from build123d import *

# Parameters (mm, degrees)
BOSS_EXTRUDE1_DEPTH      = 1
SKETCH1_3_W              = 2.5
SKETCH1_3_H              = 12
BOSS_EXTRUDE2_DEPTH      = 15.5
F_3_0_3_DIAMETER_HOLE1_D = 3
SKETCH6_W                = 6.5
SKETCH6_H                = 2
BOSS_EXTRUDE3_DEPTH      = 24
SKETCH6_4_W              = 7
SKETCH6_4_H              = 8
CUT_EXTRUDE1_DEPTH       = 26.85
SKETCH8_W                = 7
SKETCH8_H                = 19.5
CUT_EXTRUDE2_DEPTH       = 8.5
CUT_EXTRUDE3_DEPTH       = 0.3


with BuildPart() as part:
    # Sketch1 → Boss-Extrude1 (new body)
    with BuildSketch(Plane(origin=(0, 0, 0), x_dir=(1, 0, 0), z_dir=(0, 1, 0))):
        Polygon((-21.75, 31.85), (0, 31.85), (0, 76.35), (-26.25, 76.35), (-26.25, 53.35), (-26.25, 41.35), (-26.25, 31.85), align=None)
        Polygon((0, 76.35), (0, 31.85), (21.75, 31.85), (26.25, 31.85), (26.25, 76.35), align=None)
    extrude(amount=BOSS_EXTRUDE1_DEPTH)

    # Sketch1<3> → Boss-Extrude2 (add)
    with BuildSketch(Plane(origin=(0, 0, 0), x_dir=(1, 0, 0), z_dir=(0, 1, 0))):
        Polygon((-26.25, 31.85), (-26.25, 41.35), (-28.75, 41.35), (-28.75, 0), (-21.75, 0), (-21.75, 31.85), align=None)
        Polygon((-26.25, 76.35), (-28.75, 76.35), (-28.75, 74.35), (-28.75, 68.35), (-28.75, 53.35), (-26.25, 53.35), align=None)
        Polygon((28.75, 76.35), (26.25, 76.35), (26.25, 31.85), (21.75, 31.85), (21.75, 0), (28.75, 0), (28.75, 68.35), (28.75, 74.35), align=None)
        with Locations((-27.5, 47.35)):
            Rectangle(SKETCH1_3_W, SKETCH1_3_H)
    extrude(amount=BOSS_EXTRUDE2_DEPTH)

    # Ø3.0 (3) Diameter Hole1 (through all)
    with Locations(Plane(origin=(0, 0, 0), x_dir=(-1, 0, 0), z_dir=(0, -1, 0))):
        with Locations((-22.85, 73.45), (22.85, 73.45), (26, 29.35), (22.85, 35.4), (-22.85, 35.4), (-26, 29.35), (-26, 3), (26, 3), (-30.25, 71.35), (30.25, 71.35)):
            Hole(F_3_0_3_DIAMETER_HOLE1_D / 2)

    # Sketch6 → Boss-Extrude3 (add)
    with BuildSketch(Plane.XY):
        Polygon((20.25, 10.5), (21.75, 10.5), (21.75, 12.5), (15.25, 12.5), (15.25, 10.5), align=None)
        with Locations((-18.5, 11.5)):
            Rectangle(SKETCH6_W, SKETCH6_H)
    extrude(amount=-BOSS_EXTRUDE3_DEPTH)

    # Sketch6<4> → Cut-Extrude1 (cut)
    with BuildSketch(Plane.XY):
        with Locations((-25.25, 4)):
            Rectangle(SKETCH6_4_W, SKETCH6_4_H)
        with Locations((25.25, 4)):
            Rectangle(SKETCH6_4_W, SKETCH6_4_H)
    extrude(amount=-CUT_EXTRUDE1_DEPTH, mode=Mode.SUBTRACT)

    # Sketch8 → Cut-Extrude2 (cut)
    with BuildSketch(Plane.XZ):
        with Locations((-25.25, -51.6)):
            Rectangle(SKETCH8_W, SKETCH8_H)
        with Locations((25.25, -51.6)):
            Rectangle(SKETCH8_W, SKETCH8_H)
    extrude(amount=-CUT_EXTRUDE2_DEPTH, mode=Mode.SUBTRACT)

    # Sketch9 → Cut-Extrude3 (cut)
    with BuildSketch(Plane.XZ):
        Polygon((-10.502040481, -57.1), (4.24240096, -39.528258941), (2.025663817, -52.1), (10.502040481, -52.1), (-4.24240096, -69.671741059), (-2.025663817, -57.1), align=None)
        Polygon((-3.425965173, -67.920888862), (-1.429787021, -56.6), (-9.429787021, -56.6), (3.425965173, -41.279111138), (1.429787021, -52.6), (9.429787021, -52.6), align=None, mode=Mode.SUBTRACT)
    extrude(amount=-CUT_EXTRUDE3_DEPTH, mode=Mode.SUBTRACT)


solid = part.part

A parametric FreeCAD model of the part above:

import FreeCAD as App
import Part
import Sketcher
Q = App.Units.Quantity


def add_polygon(sketch, points):
    """Adds a closed chain of lines whose ends are joined by coincident constraints."""
    first, n = sketch.GeometryCount, len(points)
    for a, b in zip(points, points[1:] + points[:1]):
        sketch.addGeometry(Part.LineSegment(App.Vector(*a, 0), App.Vector(*b, 0)), False)
    for i in range(n):
        sketch.addConstraint(Sketcher.Constraint("Coincident", first + i, 2, first + (i + 1) % n, 1))

doc = App.newDocument("Part")
body = doc.addObject("PartDesign::Body", "Body")

# Sketch on XZ plane
sketch1 = doc.addObject("Sketcher::SketchObject", "Sketch")
body.addObject(sketch1)
sketch1.AttachmentSupport = (doc.XZ_Plane, [""])
sketch1.MapMode = "FlatFace"
add_polygon(sketch1, [(-26, -76), (-26, -32), (26, -32), (26, -76)])  # lines 0-3
sketch1.addConstraint(Sketcher.Constraint("Vertical", 0))
sketch1.addConstraint(Sketcher.Constraint("Horizontal", 1))
sketch1.addConstraint(Sketcher.Constraint("Vertical", 2))
sketch1.addConstraint(Sketcher.Constraint("Horizontal", 3))
sketch1.addConstraint(Sketcher.Constraint("DistanceX", 1, 1, 1, 2, Q("52.5 mm")))
sketch1.addConstraint(Sketcher.Constraint("DistanceY", 0, 1, 0, 2, Q("44.5 mm")))
sketch1.addConstraint(Sketcher.Constraint("DistanceX", 0, 2, -1, 1, Q("26.25 mm")))
sketch1.addConstraint(Sketcher.Constraint("DistanceY", 0, 2, -1, 1, Q("31.85 mm")))
pad1 = doc.addObject("PartDesign::Pad", "Pad")
body.addObject(pad1)
pad1.Profile = sketch1
pad1.Length = 1
pad1.Reversed = True

# Sketch on XZ plane
sketch2 = doc.addObject("Sketcher::SketchObject", "Sketch001")
body.addObject(sketch2)
sketch2.AttachmentSupport = (doc.XZ_Plane, [""])
sketch2.MapMode = "FlatFace"
add_polygon(sketch2, [(-26.2, -31.9), (-26.2, -76.3), (-28.8, -76.3), (-28.8, 0), (-21.8, 0), (-21.8, -31.9)])  # lines 0-5
add_polygon(sketch2, [(28.8, -76.3), (26.2, -76.3), (26.2, -31.9), (21.8, -31.9), (21.8, 0), (28.8, 0)])  # lines 6-11
sketch2.addConstraint(Sketcher.Constraint("Vertical", 0))
sketch2.addConstraint(Sketcher.Constraint("Horizontal", 1))
sketch2.addConstraint(Sketcher.Constraint("Vertical", 2))
sketch2.addConstraint(Sketcher.Constraint("Horizontal", 3))
sketch2.addConstraint(Sketcher.Constraint("Vertical", 4))
sketch2.addConstraint(Sketcher.Constraint("Horizontal", 5))
sketch2.addConstraint(Sketcher.Constraint("Horizontal", 6))
sketch2.addConstraint(Sketcher.Constraint("Vertical", 7))
sketch2.addConstraint(Sketcher.Constraint("Horizontal", 8))
sketch2.addConstraint(Sketcher.Constraint("Vertical", 9))
sketch2.addConstraint(Sketcher.Constraint("Horizontal", 10))
sketch2.addConstraint(Sketcher.Constraint("Vertical", 11))
sketch2.addConstraint(Sketcher.Constraint("Symmetric", 3, 2, 9, 2, -1, 1))
sketch2.addConstraint(Sketcher.Constraint("Symmetric", 0, 2, 6, 2, -2))
sketch2.addConstraint(Sketcher.Constraint("Symmetric", 2, 2, 10, 2, -2))
sketch2.addConstraint(Sketcher.Constraint("Horizontal", 5, 2, 7, 2))
sketch2.addConstraint(Sketcher.Constraint("DistanceX", 3, 1, 3, 2, Q("7 mm")))
sketch2.addConstraint(Sketcher.Constraint("DistanceX", 1, 2, 1, 1, Q("2.5 mm")))
sketch2.addConstraint(Sketcher.Constraint("DistanceY", 0, 2, 0, 1, Q("44.5 mm")))
sketch2.addConstraint(Sketcher.Constraint("DistanceX", 1, 2, 6, 2, Q("55 mm")))
sketch2.addConstraint(Sketcher.Constraint("DistanceY", 2, 1, 2, 2, Q("76.35 mm")))
pad2 = doc.addObject("PartDesign::Pad", "Pad001")
body.addObject(pad2)
pad2.Profile = sketch2
pad2.Length = 15.5
pad2.Reversed = True

# Sketch on XZ plane
sketch3 = doc.addObject("Sketcher::SketchObject", "Sketch002")
body.addObject(sketch3)
sketch3.AttachmentSupport = (doc.XZ_Plane, [""])
sketch3.MapMode = "FlatFace"
sketch3.addGeometry(Part.Circle(App.Vector(22.9, -73.5, 0), App.Vector(0, 0, 1), 1.5), False)
sketch3.addGeometry(Part.Circle(App.Vector(-22.9, -73.5, 0), App.Vector(0, 0, 1), 1.5), False)
sketch3.addGeometry(Part.Circle(App.Vector(-26, -29.4, 0), App.Vector(0, 0, 1), 1.5), False)
sketch3.addGeometry(Part.Circle(App.Vector(-22.9, -35.4, 0), App.Vector(0, 0, 1), 1.5), False)
sketch3.addGeometry(Part.Circle(App.Vector(22.9, -35.4, 0), App.Vector(0, 0, 1), 1.5), False)
sketch3.addGeometry(Part.Circle(App.Vector(26, -29.4, 0), App.Vector(0, 0, 1), 1.5), False)
sketch3.addGeometry(Part.Circle(App.Vector(26, -3, 0), App.Vector(0, 0, 1), 1.5), False)
sketch3.addGeometry(Part.Circle(App.Vector(-26, -3, 0), App.Vector(0, 0, 1), 1.5), False)
sketch3.addGeometry(Part.Circle(App.Vector(30.2, -71.3, 0), App.Vector(0, 0, 1), 1.5), False)
sketch3.addGeometry(Part.Circle(App.Vector(-30.2, -71.3, 0), App.Vector(0, 0, 1), 1.5), False)
sketch3.addConstraint(Sketcher.Constraint("Equal", 0, 1))
sketch3.addConstraint(Sketcher.Constraint("Equal", 1, 2))
sketch3.addConstraint(Sketcher.Constraint("Equal", 2, 3))
sketch3.addConstraint(Sketcher.Constraint("Equal", 3, 4))
sketch3.addConstraint(Sketcher.Constraint("Equal", 4, 5))
sketch3.addConstraint(Sketcher.Constraint("Equal", 5, 6))
sketch3.addConstraint(Sketcher.Constraint("Equal", 6, 7))
sketch3.addConstraint(Sketcher.Constraint("Equal", 7, 8))
sketch3.addConstraint(Sketcher.Constraint("Equal", 8, 9))
sketch3.addConstraint(Sketcher.Constraint("Symmetric", 0, 3, 1, 3, -2))
sketch3.addConstraint(Sketcher.Constraint("Symmetric", 3, 3, 4, 3, -2))
sketch3.addConstraint(Sketcher.Constraint("Symmetric", 2, 3, 5, 3, -2))
sketch3.addConstraint(Sketcher.Constraint("Symmetric", 6, 3, 7, 3, -2))
sketch3.addConstraint(Sketcher.Constraint("Symmetric", 8, 3, 9, 3, -2))
sketch3.addConstraint(Sketcher.Constraint("Vertical", 1, 3, 3, 3))
sketch3.addConstraint(Sketcher.Constraint("Vertical", 5, 3, 6, 3))
sketch3.addConstraint(Sketcher.Constraint("Diameter", 0, Q("3 mm")))
sketch3.addConstraint(Sketcher.Constraint("DistanceX", 2, 3, -1, 1, Q("26 mm")))
sketch3.addConstraint(Sketcher.Constraint("DistanceY", 6, 3, -1, 1, Q("3 mm")))
sketch3.addConstraint(Sketcher.Constraint("DistanceY", 8, 3, 5, 3, Q("42 mm")))
sketch3.addConstraint(Sketcher.Constraint("DistanceY", 3, 3, -1, 1, Q("35.4 mm")))
sketch3.addConstraint(Sketcher.Constraint("DistanceX", 1, 3, 0, 3, Q("45.7 mm")))
sketch3.addConstraint(Sketcher.Constraint("DistanceY", 1, 3, 2, 3, Q("44.1 mm")))
sketch3.addConstraint(Sketcher.Constraint("DistanceX", 0, 3, 8, 3, Q("7.4 mm")))
sketch3.addConstraint(Sketcher.Constraint("DistanceY", 0, 3, -1, 1, Q("73.45 mm")))
doc.recompute()
hole = doc.addObject("PartDesign::Hole", "Hole")
body.addObject(hole)
hole.Profile = sketch3
hole.ThreadType = "None"
hole.Diameter = 3
hole.DepthType = "ThroughAll"

# Sketch on XY plane
sketch4 = doc.addObject("Sketcher::SketchObject", "Sketch003")
body.addObject(sketch4)
sketch4.AttachmentSupport = (doc.XY_Plane, [""])
sketch4.MapMode = "FlatFace"
add_polygon(sketch4, [(21.8, 10.5), (21.8, 12.5), (15.2, 12.5), (15.2, 10.5)])  # lines 0-3
add_polygon(sketch4, [(-21.8, 12.5), (-21.8, 10.5), (-15.2, 10.5), (-15.2, 12.5)])  # lines 4-7
sketch4.addConstraint(Sketcher.Constraint("Vertical", 0))
sketch4.addConstraint(Sketcher.Constraint("Horizontal", 1))
sketch4.addConstraint(Sketcher.Constraint("Vertical", 2))
sketch4.addConstraint(Sketcher.Constraint("Horizontal", 3))
sketch4.addConstraint(Sketcher.Constraint("Vertical", 4))
sketch4.addConstraint(Sketcher.Constraint("Horizontal", 5))
sketch4.addConstraint(Sketcher.Constraint("Vertical", 6))
sketch4.addConstraint(Sketcher.Constraint("Horizontal", 7))
sketch4.addConstraint(Sketcher.Constraint("Symmetric", 3, 2, 4, 2, -2))
sketch4.addConstraint(Sketcher.Constraint("Symmetric", 1, 2, 6, 2, -2))
sketch4.addConstraint(Sketcher.Constraint("DistanceY", 0, 1, 0, 2, Q("2 mm")))
sketch4.addConstraint(Sketcher.Constraint("DistanceX", 1, 2, 1, 1, Q("6.5 mm")))
sketch4.addConstraint(Sketcher.Constraint("DistanceX", 4, 2, 2, 2, Q("37 mm")))
sketch4.addConstraint(Sketcher.Constraint("DistanceY", -1, 1, 0, 2, Q("12.5 mm")))
pad3 = doc.addObject("PartDesign::Pad", "Pad002")
body.addObject(pad3)
pad3.Profile = sketch4
pad3.Length = 24
pad3.Reversed = True

# Sketch on XY plane
sketch5 = doc.addObject("Sketcher::SketchObject", "Sketch004")
body.addObject(sketch5)
sketch5.AttachmentSupport = (doc.XY_Plane, [""])
sketch5.MapMode = "FlatFace"
add_polygon(sketch5, [(-29, 8), (-29, 0), (-22, 0), (-22, 8)])  # lines 0-3
add_polygon(sketch5, [(22, 8), (22, 0), (29, 0), (29, 8)])  # lines 4-7
sketch5.addConstraint(Sketcher.Constraint("Vertical", 0))
sketch5.addConstraint(Sketcher.Constraint("Horizontal", 1))
sketch5.addConstraint(Sketcher.Constraint("Vertical", 2))
sketch5.addConstraint(Sketcher.Constraint("Horizontal", 3))
sketch5.addConstraint(Sketcher.Constraint("Vertical", 4))
sketch5.addConstraint(Sketcher.Constraint("Horizontal", 5))
sketch5.addConstraint(Sketcher.Constraint("Vertical", 6))
sketch5.addConstraint(Sketcher.Constraint("Horizontal", 7))
sketch5.addConstraint(Sketcher.Constraint("Symmetric", 1, 2, 4, 2, -1, 1))
sketch5.addConstraint(Sketcher.Constraint("Symmetric", 0, 2, 5, 2, -2))
sketch5.addConstraint(Sketcher.Constraint("Horizontal", 3, 2, 6, 2))
sketch5.addConstraint(Sketcher.Constraint("DistanceX", 1, 1, 1, 2, Q("7 mm")))
sketch5.addConstraint(Sketcher.Constraint("DistanceY", 0, 2, 0, 1, Q("8 mm")))
sketch5.addConstraint(Sketcher.Constraint("DistanceX", 1, 2, 4, 2, Q("43.5 mm")))
pocket1 = doc.addObject("PartDesign::Pocket", "Pocket")
body.addObject(pocket1)
pocket1.Profile = sketch5
pocket1.Length = 26.85

# Sketch on XZ plane
sketch6 = doc.addObject("Sketcher::SketchObject", "Sketch005")
body.addObject(sketch6)
sketch6.AttachmentSupport = (doc.XZ_Plane, [""])
sketch6.MapMode = "FlatFace"
add_polygon(sketch6, [(-29, -42), (-29, -61), (-22, -61), (-22, -42)])  # lines 0-3
add_polygon(sketch6, [(22, -42), (22, -61), (29, -61), (29, -42)])  # lines 4-7
sketch6.addConstraint(Sketcher.Constraint("Vertical", 0))
sketch6.addConstraint(Sketcher.Constraint("Horizontal", 1))
sketch6.addConstraint(Sketcher.Constraint("Vertical", 2))
sketch6.addConstraint(Sketcher.Constraint("Horizontal", 3))
sketch6.addConstraint(Sketcher.Constraint("Vertical", 4))
sketch6.addConstraint(Sketcher.Constraint("Horizontal", 5))
sketch6.addConstraint(Sketcher.Constraint("Vertical", 6))
sketch6.addConstraint(Sketcher.Constraint("Horizontal", 7))
sketch6.addConstraint(Sketcher.Constraint("Symmetric", 1, 2, 4, 2, -2))
sketch6.addConstraint(Sketcher.Constraint("Symmetric", 3, 2, 6, 2, -2))
sketch6.addConstraint(Sketcher.Constraint("DistanceX", 1, 1, 1, 2, Q("7 mm")))
sketch6.addConstraint(Sketcher.Constraint("DistanceY", 0, 2, 0, 1, Q("19.5 mm")))
sketch6.addConstraint(Sketcher.Constraint("DistanceX", 1, 2, 4, 2, Q("43.5 mm")))
sketch6.addConstraint(Sketcher.Constraint("DistanceY", 0, 2, -1, 1, Q("61.35 mm")))
pocket2 = doc.addObject("PartDesign::Pocket", "Pocket001")
body.addObject(pocket2)
pocket2.Profile = sketch6
pocket2.Length = 8.5

# Sketch on XZ plane
sketch7 = doc.addObject("Sketcher::SketchObject", "Sketch006")
body.addObject(sketch7)
sketch7.AttachmentSupport = (doc.XZ_Plane, [""])
sketch7.MapMode = "FlatFace"
add_polygon(sketch7, [(4, -40), (-11, -57), (-2, -57), (-4, -70), (11, -52), (2, -52)])  # lines 0-5
add_polygon(sketch7, [(-3, -68), (-1, -57), (-9, -57), (3, -41), (1, -53), (9, -53)])  # lines 6-11
sketch7.addConstraint(Sketcher.Constraint("Horizontal", 1))
sketch7.addConstraint(Sketcher.Constraint("Horizontal", 4))
sketch7.addConstraint(Sketcher.Constraint("Horizontal", 7))
sketch7.addConstraint(Sketcher.Constraint("Horizontal", 10))
sketch7.addConstraint(Sketcher.Constraint("Parallel", 0, 3))
sketch7.addConstraint(Sketcher.Constraint("Parallel", 2, 5))
sketch7.addConstraint(Sketcher.Constraint("Parallel", 5, 6))
sketch7.addConstraint(Sketcher.Constraint("Parallel", 3, 8))
sketch7.addConstraint(Sketcher.Constraint("Parallel", 6, 9))
sketch7.addConstraint(Sketcher.Constraint("Parallel", 8, 11))
sketch7.addConstraint(Sketcher.Constraint("Equal", 1, 4))
sketch7.addConstraint(Sketcher.Constraint("Equal", 7, 10))
sketch7.addConstraint(Sketcher.Constraint("DistanceX", 7, 2, 7, 1, Q("8 mm")))
sketch7.addConstraint(Sketcher.Constraint("Angle", 0, Q("-130 deg")))
sketch7.addConstraint(Sketcher.Constraint("Angle", 2, Q("-100 deg")))
sketch7.addConstraint(Sketcher.Constraint("Distance", 8, Q("20 mm")))
sketch7.addConstraint(Sketcher.Constraint("DistanceY", 1, 2, 3, 2, Q("5 mm")))
sketch7.addConstraint(Sketcher.Constraint("DistanceY", 6, 2, 9, 2, Q("4 mm")))
sketch7.addConstraint(Sketcher.Constraint("DistanceY", 0, 2, -1, 1, Q("57.1 mm")))
sketch7.addConstraint(Sketcher.Constraint("DistanceY", 6, 2, -1, 1, Q("56.6 mm")))
sketch7.addConstraint(Sketcher.Constraint("DistanceX", 2, 2, -1, 1, Q("4.242401 mm")))
sketch7.addConstraint(Sketcher.Constraint("DistanceX", -1, 1, 5, 2, Q("4.242401 mm")))
sketch7.addConstraint(Sketcher.Constraint("DistanceX", 4, 2, 8, 2, Q("1.400301 mm")))
sketch7.addConstraint(Sketcher.Constraint("DistanceX", 11, 2, 1, 2, Q("1.400301 mm")))
pocket3 = doc.addObject("PartDesign::Pocket", "Pocket002")
body.addObject(pocket3)
pocket3.Profile = sketch7
pocket3.Length = 0.3

doc.recompute()
